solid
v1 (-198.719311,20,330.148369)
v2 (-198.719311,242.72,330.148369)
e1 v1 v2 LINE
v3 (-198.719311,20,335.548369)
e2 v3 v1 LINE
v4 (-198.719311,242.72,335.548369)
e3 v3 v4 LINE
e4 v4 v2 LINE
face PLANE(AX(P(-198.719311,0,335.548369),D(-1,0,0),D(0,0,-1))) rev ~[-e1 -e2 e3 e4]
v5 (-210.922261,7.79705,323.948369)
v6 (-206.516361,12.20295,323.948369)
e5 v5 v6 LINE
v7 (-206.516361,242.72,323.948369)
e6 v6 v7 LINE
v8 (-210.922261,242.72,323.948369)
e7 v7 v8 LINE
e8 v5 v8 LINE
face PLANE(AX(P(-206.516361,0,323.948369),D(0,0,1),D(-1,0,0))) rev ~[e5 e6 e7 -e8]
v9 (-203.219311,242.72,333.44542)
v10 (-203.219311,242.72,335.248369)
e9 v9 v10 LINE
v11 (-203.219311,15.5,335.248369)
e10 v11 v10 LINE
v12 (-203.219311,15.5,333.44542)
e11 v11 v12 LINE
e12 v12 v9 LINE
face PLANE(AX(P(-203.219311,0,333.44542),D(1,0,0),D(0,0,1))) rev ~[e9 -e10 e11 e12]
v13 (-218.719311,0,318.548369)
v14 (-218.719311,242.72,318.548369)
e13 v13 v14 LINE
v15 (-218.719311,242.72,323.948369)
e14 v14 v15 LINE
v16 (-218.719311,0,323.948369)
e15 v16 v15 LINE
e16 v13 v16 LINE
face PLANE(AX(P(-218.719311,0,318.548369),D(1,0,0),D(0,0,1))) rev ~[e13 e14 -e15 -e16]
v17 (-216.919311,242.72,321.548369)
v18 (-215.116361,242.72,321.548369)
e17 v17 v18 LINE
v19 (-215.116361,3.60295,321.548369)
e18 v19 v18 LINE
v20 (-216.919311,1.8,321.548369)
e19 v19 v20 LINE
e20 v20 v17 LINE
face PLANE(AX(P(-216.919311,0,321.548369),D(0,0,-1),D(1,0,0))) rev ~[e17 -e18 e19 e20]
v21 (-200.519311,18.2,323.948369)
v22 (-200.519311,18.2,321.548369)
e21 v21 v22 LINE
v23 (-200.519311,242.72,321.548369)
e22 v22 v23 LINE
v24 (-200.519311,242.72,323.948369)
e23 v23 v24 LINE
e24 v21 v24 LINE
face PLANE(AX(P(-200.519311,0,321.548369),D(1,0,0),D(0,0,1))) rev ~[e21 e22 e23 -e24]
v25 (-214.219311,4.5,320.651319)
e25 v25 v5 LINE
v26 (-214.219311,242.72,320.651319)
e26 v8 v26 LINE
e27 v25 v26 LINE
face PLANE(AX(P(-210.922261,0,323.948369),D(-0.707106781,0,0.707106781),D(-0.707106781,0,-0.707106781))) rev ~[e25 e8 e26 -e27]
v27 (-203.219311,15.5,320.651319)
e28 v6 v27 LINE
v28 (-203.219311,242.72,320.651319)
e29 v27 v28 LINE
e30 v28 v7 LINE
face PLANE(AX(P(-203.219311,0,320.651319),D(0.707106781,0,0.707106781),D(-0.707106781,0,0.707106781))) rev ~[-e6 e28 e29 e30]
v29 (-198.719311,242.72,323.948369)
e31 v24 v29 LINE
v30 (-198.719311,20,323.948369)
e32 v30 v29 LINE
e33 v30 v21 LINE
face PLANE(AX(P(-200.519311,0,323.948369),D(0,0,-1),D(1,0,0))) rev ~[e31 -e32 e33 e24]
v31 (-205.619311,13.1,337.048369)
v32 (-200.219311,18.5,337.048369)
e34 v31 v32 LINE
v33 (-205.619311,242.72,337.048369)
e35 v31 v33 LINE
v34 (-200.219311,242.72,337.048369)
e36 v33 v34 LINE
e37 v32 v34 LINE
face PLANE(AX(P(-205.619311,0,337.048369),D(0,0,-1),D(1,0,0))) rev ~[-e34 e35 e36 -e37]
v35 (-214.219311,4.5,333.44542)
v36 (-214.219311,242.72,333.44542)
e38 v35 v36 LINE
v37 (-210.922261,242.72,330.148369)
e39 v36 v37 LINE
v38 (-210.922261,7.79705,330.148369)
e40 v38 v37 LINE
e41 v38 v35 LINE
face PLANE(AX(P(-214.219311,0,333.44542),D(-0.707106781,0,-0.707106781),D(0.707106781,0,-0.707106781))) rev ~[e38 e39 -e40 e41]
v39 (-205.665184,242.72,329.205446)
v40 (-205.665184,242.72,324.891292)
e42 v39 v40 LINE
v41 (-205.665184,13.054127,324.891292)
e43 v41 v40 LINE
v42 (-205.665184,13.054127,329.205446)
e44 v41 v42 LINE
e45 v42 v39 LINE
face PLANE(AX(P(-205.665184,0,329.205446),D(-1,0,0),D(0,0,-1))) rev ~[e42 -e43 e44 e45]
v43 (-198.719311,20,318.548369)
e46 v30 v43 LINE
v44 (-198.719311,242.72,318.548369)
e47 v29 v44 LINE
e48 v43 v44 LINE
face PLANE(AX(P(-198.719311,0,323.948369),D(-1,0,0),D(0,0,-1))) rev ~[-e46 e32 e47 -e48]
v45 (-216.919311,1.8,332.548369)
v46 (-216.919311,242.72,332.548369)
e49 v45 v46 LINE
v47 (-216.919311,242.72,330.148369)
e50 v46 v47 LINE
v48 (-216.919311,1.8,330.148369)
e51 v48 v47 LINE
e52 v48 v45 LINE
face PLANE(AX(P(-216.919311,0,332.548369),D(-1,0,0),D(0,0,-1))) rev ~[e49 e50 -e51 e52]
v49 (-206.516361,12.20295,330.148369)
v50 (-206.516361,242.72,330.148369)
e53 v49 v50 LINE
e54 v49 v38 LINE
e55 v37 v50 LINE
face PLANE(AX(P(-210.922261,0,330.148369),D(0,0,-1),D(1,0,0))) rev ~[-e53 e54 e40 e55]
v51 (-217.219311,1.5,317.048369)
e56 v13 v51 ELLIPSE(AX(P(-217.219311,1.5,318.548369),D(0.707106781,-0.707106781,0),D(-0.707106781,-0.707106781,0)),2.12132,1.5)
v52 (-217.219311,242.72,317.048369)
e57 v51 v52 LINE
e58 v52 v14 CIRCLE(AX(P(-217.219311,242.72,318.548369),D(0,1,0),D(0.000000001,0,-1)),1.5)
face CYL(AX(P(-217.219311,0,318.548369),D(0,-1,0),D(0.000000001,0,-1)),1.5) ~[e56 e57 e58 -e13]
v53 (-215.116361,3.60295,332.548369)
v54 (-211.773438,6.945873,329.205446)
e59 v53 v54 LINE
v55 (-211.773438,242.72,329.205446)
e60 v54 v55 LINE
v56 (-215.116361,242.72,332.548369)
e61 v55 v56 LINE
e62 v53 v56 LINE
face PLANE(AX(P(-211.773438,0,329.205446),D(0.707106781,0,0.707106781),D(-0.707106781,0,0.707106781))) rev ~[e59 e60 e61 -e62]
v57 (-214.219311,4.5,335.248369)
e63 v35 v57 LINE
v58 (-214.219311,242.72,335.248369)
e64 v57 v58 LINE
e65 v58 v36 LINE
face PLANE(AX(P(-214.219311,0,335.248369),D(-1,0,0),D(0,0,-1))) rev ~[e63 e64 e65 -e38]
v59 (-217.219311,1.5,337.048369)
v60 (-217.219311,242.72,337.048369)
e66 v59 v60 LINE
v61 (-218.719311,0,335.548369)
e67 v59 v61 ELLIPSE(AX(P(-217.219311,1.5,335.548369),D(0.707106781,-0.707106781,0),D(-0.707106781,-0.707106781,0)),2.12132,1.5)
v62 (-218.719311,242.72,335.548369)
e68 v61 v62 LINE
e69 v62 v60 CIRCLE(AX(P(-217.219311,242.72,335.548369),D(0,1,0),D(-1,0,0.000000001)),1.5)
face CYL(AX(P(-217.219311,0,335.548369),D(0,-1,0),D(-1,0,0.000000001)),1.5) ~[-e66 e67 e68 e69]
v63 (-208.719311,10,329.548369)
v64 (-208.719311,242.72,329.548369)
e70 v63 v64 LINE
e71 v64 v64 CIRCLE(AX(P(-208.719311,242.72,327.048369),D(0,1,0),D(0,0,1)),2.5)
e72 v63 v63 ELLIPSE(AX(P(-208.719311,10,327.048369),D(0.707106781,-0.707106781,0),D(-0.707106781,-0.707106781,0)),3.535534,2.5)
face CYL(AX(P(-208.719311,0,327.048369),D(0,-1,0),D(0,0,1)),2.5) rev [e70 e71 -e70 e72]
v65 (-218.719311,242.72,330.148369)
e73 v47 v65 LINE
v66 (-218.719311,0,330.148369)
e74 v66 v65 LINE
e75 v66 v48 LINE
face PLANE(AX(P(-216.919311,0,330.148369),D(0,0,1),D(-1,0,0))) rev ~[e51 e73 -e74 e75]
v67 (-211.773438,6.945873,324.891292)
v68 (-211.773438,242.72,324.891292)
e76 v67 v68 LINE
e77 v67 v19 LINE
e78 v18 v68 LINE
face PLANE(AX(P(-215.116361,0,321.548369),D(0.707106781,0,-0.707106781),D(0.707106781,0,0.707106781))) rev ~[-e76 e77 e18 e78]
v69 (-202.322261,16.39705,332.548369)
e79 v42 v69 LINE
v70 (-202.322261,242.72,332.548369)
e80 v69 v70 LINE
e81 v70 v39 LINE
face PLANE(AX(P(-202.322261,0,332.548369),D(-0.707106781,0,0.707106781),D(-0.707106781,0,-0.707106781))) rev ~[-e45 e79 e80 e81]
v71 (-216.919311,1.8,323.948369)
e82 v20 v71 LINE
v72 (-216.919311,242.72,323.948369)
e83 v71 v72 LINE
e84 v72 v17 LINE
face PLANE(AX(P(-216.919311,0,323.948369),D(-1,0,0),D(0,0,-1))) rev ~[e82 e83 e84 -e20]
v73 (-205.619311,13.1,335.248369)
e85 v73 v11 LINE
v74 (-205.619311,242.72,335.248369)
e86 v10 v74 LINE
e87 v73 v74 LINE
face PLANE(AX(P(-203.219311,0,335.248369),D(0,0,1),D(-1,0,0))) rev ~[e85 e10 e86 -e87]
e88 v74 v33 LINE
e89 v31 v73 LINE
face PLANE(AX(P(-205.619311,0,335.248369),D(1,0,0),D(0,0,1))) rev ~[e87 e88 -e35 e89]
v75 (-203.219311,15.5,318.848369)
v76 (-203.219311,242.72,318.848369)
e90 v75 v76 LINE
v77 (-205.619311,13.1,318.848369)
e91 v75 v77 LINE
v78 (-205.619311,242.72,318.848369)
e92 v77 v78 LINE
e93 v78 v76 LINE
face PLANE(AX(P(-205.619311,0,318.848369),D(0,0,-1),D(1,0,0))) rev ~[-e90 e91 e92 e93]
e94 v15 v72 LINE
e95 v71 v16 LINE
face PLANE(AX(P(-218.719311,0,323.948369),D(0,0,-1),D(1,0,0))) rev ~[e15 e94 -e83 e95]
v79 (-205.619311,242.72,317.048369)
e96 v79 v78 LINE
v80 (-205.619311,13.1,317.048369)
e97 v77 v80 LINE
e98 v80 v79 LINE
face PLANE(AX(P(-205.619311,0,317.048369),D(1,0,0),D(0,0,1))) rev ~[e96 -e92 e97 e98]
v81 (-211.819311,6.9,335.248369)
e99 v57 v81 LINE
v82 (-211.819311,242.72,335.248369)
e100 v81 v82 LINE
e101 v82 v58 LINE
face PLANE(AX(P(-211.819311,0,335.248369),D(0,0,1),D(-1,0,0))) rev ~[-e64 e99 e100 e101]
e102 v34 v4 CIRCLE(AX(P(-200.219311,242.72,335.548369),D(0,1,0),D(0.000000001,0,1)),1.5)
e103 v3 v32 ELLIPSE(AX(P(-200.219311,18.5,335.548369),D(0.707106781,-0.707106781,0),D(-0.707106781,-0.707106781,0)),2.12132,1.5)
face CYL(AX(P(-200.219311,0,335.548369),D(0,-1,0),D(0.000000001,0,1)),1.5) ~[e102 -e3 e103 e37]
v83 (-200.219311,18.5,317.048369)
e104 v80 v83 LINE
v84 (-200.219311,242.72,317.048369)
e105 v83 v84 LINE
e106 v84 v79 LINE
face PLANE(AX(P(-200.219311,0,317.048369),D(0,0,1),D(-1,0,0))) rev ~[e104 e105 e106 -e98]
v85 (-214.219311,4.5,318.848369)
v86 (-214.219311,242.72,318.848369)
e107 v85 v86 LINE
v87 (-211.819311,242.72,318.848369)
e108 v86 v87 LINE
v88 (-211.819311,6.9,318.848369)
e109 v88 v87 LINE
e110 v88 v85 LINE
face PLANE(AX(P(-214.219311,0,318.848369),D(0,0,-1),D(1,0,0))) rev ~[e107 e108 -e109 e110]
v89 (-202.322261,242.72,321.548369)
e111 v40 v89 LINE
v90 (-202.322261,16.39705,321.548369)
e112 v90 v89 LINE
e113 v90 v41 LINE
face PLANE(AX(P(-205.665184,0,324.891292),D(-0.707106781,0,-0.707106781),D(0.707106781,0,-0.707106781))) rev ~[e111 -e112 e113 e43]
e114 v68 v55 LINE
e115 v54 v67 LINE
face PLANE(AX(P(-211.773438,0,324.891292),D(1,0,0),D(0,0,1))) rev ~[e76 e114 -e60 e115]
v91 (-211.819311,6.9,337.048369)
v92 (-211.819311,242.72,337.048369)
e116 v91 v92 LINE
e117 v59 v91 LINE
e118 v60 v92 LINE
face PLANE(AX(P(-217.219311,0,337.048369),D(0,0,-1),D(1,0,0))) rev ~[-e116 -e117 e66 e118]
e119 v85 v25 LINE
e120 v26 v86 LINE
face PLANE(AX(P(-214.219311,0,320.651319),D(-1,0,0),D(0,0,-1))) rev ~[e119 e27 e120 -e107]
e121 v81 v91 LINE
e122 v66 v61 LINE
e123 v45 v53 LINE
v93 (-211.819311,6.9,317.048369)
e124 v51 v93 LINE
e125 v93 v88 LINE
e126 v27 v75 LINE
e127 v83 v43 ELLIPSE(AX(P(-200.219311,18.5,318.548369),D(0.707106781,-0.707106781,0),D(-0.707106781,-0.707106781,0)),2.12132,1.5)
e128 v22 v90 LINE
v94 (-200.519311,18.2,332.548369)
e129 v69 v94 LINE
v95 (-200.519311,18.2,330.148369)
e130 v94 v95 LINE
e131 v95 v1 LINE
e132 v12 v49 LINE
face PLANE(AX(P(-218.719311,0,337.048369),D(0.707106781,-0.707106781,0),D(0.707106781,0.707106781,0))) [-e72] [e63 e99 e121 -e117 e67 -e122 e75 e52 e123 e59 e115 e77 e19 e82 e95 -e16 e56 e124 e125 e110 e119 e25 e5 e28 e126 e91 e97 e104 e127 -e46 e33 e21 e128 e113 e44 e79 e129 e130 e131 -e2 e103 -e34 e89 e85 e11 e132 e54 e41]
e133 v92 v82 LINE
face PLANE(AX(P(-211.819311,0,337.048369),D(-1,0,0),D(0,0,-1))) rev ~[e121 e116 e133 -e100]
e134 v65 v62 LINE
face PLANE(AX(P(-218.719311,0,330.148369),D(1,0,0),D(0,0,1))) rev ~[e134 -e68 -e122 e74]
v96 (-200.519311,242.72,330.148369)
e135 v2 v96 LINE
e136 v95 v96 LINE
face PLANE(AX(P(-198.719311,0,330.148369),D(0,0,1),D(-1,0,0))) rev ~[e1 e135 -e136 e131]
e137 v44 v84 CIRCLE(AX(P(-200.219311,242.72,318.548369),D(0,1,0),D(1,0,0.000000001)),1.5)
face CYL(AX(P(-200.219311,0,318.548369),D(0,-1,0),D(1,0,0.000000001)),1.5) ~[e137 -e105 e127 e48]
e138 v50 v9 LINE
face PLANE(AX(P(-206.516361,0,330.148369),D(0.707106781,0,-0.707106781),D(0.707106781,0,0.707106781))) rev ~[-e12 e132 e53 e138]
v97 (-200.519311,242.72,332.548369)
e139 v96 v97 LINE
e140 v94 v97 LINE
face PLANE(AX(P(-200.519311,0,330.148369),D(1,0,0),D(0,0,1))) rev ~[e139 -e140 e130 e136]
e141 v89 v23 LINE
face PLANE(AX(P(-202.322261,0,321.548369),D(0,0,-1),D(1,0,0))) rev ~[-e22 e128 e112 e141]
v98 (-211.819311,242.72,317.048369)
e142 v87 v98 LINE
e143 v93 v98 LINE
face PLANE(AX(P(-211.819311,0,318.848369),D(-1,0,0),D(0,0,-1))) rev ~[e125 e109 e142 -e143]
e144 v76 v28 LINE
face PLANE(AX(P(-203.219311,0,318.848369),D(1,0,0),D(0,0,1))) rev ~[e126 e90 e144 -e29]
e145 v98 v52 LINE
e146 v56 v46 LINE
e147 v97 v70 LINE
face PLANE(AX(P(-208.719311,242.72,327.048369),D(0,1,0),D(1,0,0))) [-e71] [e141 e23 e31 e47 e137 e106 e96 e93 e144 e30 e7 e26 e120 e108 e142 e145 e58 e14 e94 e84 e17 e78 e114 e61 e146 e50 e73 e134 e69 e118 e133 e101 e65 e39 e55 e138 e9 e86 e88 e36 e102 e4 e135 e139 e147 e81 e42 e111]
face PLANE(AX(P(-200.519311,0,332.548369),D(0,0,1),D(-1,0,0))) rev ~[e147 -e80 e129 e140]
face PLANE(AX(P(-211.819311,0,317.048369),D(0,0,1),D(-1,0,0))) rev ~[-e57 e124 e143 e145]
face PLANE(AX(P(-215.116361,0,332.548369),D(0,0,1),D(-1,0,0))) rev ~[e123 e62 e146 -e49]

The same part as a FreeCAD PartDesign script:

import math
import FreeCAD as App
import Part
import Sketcher
from FreeCAD import Vector


def add_polygon(sketch, points):
    """Adds a closed chain of lines whose ends are joined by coincident constraints."""
    first, n = sketch.GeometryCount, len(points)
    for a, b in zip(points, points[1:] + points[:1]):
        sketch.addGeometry(Part.LineSegment(App.Vector(*a, 0), App.Vector(*b, 0)), False)
    for i in range(n):
        sketch.addConstraint(Sketcher.Constraint("Coincident", first + i, 2, first + (i + 1) % n, 1))

doc = App.newDocument("Part")
body = doc.addObject("PartDesign::Body", "Body")

sketch1 = body.newObject("Sketcher::SketchObject", "Sketch")
sketch1.AttachmentSupport = (doc.getObject("XZ_Plane"), [""])
sketch1.MapMode = "FlatFace"
sketch1.addGeometry([
    Part.LineSegment(Vector(-216.9, 330.1, 0), Vector(-218.7, 330.1, 0)),
    Part.LineSegment(Vector(-218.7, 330.1, 0), Vector(-218.7, 335.5, 0)),
    Part.ArcOfCircle(Part.Circle(Vector(-217.2, 335.5, 0), Vector(0, 0, 1), 1.5), math.radians(90), math.radians(180)),
    Part.LineSegment(Vector(-217.2, 337, 0), Vector(-211.8, 337, 0)),
    Part.LineSegment(Vector(-211.8, 337, 0), Vector(-211.8, 335.2, 0)),
    Part.LineSegment(Vector(-211.8, 335.2, 0), Vector(-214.2, 335.2, 0)),
    Part.LineSegment(Vector(-214.2, 335.2, 0), Vector(-214.2, 333.4, 0)),
    Part.LineSegment(Vector(-214.2, 333.4, 0), Vector(-210.9, 330.1, 0)),
    Part.LineSegment(Vector(-210.9, 330.1, 0), Vector(-206.5, 330.1, 0)),
    Part.LineSegment(Vector(-206.5, 330.1, 0), Vector(-203.2, 333.4, 0)),
    Part.LineSegment(Vector(-203.2, 333.4, 0), Vector(-203.2, 335.2, 0)),
    Part.LineSegment(Vector(-203.2, 335.2, 0), Vector(-205.6, 335.2, 0)),
    Part.LineSegment(Vector(-205.6, 335.2, 0), Vector(-205.6, 337, 0)),
    Part.LineSegment(Vector(-205.6, 337, 0), Vector(-200.2, 337, 0)),
    Part.ArcOfCircle(Part.Circle(Vector(-200.2, 335.5, 0), Vector(0, 0, 1), 1.5), math.radians(0), math.radians(90)),
    Part.LineSegment(Vector(-198.7, 335.5, 0), Vector(-198.7, 330.1, 0)),
    Part.LineSegment(Vector(-198.7, 330.1, 0), Vector(-200.5, 330.1, 0)),
    Part.LineSegment(Vector(-200.5, 330.1, 0), Vector(-200.5, 332.5, 0)),
    Part.LineSegment(Vector(-200.5, 332.5, 0), Vector(-202.3, 332.5, 0)),
    Part.LineSegment(Vector(-202.3, 332.5, 0), Vector(-205.7, 329.2, 0)),
    Part.LineSegment(Vector(-205.7, 329.2, 0), Vector(-205.7, 324.9, 0)),
    Part.LineSegment(Vector(-205.7, 324.9, 0), Vector(-202.3, 321.5, 0)),
    Part.LineSegment(Vector(-202.3, 321.5, 0), Vector(-200.5, 321.5, 0)),
    Part.LineSegment(Vector(-200.5, 321.5, 0), Vector(-200.5, 323.9, 0)),
    Part.LineSegment(Vector(-200.5, 323.9, 0), Vector(-198.7, 323.9, 0)),
    Part.LineSegment(Vector(-198.7, 323.9, 0), Vector(-198.7, 318.5, 0)),
    Part.ArcOfCircle(Part.Circle(Vector(-200.2, 318.5, 0), Vector(0, 0, 1), 1.5), math.radians(-90), math.radians(0)),
    Part.LineSegment(Vector(-200.2, 317, 0), Vector(-205.6, 317, 0)),
    Part.LineSegment(Vector(-205.6, 317, 0), Vector(-205.6, 318.8, 0)),
    Part.LineSegment(Vector(-205.6, 318.8, 0), Vector(-203.2, 318.8, 0)),
    Part.LineSegment(Vector(-203.2, 318.8, 0), Vector(-203.2, 320.7, 0)),
    Part.LineSegment(Vector(-203.2, 320.7, 0), Vector(-206.5, 323.9, 0)),
    Part.LineSegment(Vector(-206.5, 323.9, 0), Vector(-210.9, 323.9, 0)),
    Part.LineSegment(Vector(-210.9, 323.9, 0), Vector(-214.2, 320.7, 0)),
    Part.LineSegment(Vector(-214.2, 320.7, 0), Vector(-214.2, 318.8, 0)),
    Part.LineSegment(Vector(-214.2, 318.8, 0), Vector(-211.8, 318.8, 0)),
    Part.LineSegment(Vector(-211.8, 318.8, 0), Vector(-211.8, 317, 0)),
    Part.LineSegment(Vector(-211.8, 317, 0), Vector(-217.2, 317, 0)),
    Part.ArcOfCircle(Part.Circle(Vector(-217.2, 318.5, 0), Vector(0, 0, 1), 1.5), math.radians(180), math.radians(270)),
    Part.LineSegment(Vector(-218.7, 318.5, 0), Vector(-218.7, 323.9, 0)),
    Part.LineSegment(Vector(-218.7, 323.9, 0), Vector(-216.9, 323.9, 0)),
    Part.LineSegment(Vector(-216.9, 323.9, 0), Vector(-216.9, 321.5, 0)),
    Part.LineSegment(Vector(-216.9, 321.5, 0), Vector(-215.1, 321.5, 0)),
    Part.LineSegment(Vector(-215.1, 321.5, 0), Vector(-211.8, 324.9, 0)),
    Part.LineSegment(Vector(-211.8, 324.9, 0), Vector(-211.8, 329.2, 0)),
    Part.LineSegment(Vector(-211.8, 329.2, 0), Vector(-215.1, 332.5, 0)),
    Part.LineSegment(Vector(-215.1, 332.5, 0), Vector(-216.9, 332.5, 0)),
    Part.LineSegment(Vector(-216.9, 332.5, 0), Vector(-216.9, 330.1, 0)),
    Part.Circle(Vector(-208.7, 327, 0), Vector(0, 0, 1), 2.5),
], False)
sketch1.addConstraint([
    Sketcher.Constraint("Coincident", 0, 2, 1, 1),
    Sketcher.Constraint("Tangent", 1, 2, 2, 2),
    Sketcher.Constraint("Tangent", 2, 1, 3, 1),
    Sketcher.Constraint("Coincident", 3, 2, 4, 1),
    Sketcher.Constraint("Coincident", 4, 2, 5, 1),
    Sketcher.Constraint("Coincident", 5, 2, 6, 1),
    Sketcher.Constraint("Coincident", 6, 2, 7, 1),
    Sketcher.Constraint("Coincident", 7, 2, 8, 1),
    Sketcher.Constraint("Coincident", 8, 2, 9, 1),
    Sketcher.Constraint("Coincident", 9, 2, 10, 1),
    Sketcher.Constraint("Coincident", 10, 2, 11, 1),
    Sketcher.Constraint("Coincident", 11, 2, 12, 1),
    Sketcher.Constraint("Coincident", 12, 2, 13, 1),
    Sketcher.Constraint("Tangent", 13, 2, 14, 2),
    Sketcher.Constraint("Tangent", 14, 1, 15, 1),
    Sketcher.Constraint("Coincident", 15, 2, 16, 1),
    Sketcher.Constraint("Coincident", 16, 2, 17, 1),
    Sketcher.Constraint("Coincident", 17, 2, 18, 1),
    Sketcher.Constraint("Coincident", 18, 2, 19, 1),
    Sketcher.Constraint("Coincident", 19, 2, 20, 1),
    Sketcher.Constraint("Coincident", 20, 2, 21, 1),
    Sketcher.Constraint("Coincident", 21, 2, 22, 1),
    Sketcher.Constraint("Coincident", 22, 2, 23, 1),
    Sketcher.Constraint("Coincident", 23, 2, 24, 1),
    Sketcher.Constraint("Coincident", 24, 2, 25, 1),
    Sketcher.Constraint("Tangent", 25, 2, 26, 2),
    Sketcher.Constraint("Tangent", 26, 1, 27, 1),
    Sketcher.Constraint("Coincident", 27, 2, 28, 1),
    Sketcher.Constraint("Coincident", 28, 2, 29, 1),
    Sketcher.Constraint("Coincident", 29, 2, 30, 1),
    Sketcher.Constraint("Coincident", 30, 2, 31, 1),
    Sketcher.Constraint("Coincident", 31, 2, 32, 1),
    Sketcher.Constraint("Coincident", 32, 2, 33, 1),
    Sketcher.Constraint("Coincident", 33, 2, 34, 1),
    Sketcher.Constraint("Coincident", 34, 2, 35, 1),
    Sketcher.Constraint("Coincident", 35, 2, 36, 1),
    Sketcher.Constraint("Coincident", 36, 2, 37, 1),
    Sketcher.Constraint("Tangent", 37, 2, 38, 2),
    Sketcher.Constraint("Tangent", 38, 1, 39, 1),
    Sketcher.Constraint("Coincident", 39, 2, 40, 1),
    Sketcher.Constraint("Coincident", 40, 2, 41, 1),
    Sketcher.Constraint("Coincident", 41, 2, 42, 1),
    Sketcher.Constraint("Coincident", 42, 2, 43, 1),
    Sketcher.Constraint("Coincident", 43, 2, 44, 1),
    Sketcher.Constraint("Coincident", 44, 2, 45, 1),
    Sketcher.Constraint("Coincident", 45, 2, 46, 1),
    Sketcher.Constraint("Coincident", 46, 2, 47, 1),
    Sketcher.Constraint("Coincident", 47, 2, 0, 1),
    Sketcher.Constraint("Horizontal", 0),
    Sketcher.Constraint("Vertical", 1),
    Sketcher.Constraint("Horizontal", 3),
    Sketcher.Constraint("Vertical", 4),
    Sketcher.Constraint("Horizontal", 5),
    Sketcher.Constraint("Vertical", 6),
    Sketcher.Constraint("Horizontal", 8),
    Sketcher.Constraint("Vertical", 10),
    Sketcher.Constraint("Horizontal", 11),
    Sketcher.Constraint("Vertical", 12),
    Sketcher.Constraint("Horizontal", 13),
    Sketcher.Constraint("Vertical", 15),
    Sketcher.Constraint("Horizontal", 16),
    Sketcher.Constraint("Vertical", 17),
    Sketcher.Constraint("Horizontal", 18),
    Sketcher.Constraint("Vertical", 20),
    Sketcher.Constraint("Horizontal", 22),
    Sketcher.Constraint("Vertical", 23),
    Sketcher.Constraint("Horizontal", 24),
    Sketcher.Constraint("Vertical", 25),
    Sketcher.Constraint("Horizontal", 27),
    Sketcher.Constraint("Vertical", 28),
    Sketcher.Constraint("Horizontal", 29),
    Sketcher.Constraint("Vertical", 30),
    Sketcher.Constraint("Horizontal", 32),
    Sketcher.Constraint("Vertical", 34),
    Sketcher.Constraint("Horizontal", 35),
    Sketcher.Constraint("Vertical", 36),
    Sketcher.Constraint("Horizontal", 37),
    Sketcher.Constraint("Vertical", 39),
    Sketcher.Constraint("Horizontal", 40),
    Sketcher.Constraint("Vertical", 41),
    Sketcher.Constraint("Horizontal", 42),
    Sketcher.Constraint("Vertical", 44),
    Sketcher.Constraint("Horizontal", 46),
    Sketcher.Constraint("Vertical", 47),
    Sketcher.Constraint("Equal", 2, 14),
    Sketcher.Constraint("Equal", 14, 26),
    Sketcher.Constraint("Equal", 26, 38),
    Sketcher.Constraint("Perpendicular", 7, 9),
    Sketcher.Constraint("Parallel", 9, 19),
    Sketcher.Constraint("Perpendicular", 19, 21),
    Sketcher.Constraint("Parallel", 21, 31),
    Sketcher.Constraint("Perpendicular", 31, 33),
    Sketcher.Constraint("Parallel", 33, 43),
    Sketcher.Constraint("Perpendicular", 43, 45),
    Sketcher.Constraint("Horizontal", 2, 3, 14, 3),
    Sketcher.Constraint("Horizontal", 26, 3, 38, 3),
    Sketcher.Constraint("Horizontal", 0, 2, 7, 2),
    Sketcher.Constraint("Horizontal", 6, 2, 9, 2),
    Sketcher.Constraint("Horizontal", 5, 2, 10, 2),
    Sketcher.Constraint("Horizontal", 8, 2, 15, 2),
    Sketcher.Constraint("Horizontal", 24, 2, 31, 2),
    Sketcher.Constraint("Horizontal", 30, 2, 33, 2),
    Sketcher.Constraint("Horizontal", 29, 2, 34, 2),
    Sketcher.Constraint("Horizontal", 32, 2, 39, 2),
    Sketcher.Constraint("Horizontal", 22, 2, 41, 2),
    Sketcher.Constraint("Horizontal", 20, 2, 43, 2),
    Sketcher.Constraint("Horizontal", 19, 2, 44, 2),
    Sketcher.Constraint("Horizontal", 18, 2, 45, 2),
    Sketcher.Constraint("Vertical", 14, 3, 26, 3),
    Sketcher.Constraint("Vertical", 2, 3, 38, 3),
    Sketcher.Constraint("Vertical", 18, 2, 21, 2),
    Sketcher.Constraint("Vertical", 17, 2, 22, 2),
    Sketcher.Constraint("Vertical", 12, 2, 27, 2),
    Sketcher.Constraint("Vertical", 10, 2, 29, 2),
    Sketcher.Constraint("Vertical", 8, 2, 31, 2),
    Sketcher.Constraint("Vertical", 7, 2, 32, 2),
    Sketcher.Constraint("Vertical", 6, 2, 33, 2),
    Sketcher.Constraint("Vertical", 4, 2, 35, 2),
    Sketcher.Constraint("Vertical", 41, 2, 46, 2),
    Sketcher.Constraint("Equal", 5, 11),
    Sketcher.Constraint("Equal", 3, 13),
    Sketcher.Constraint("Equal", 0, 16),
    Sketcher.Constraint("Equal", 22, 42),
    Sketcher.Constraint("Equal", 37, 1),
    Sketcher.Constraint("Equal", 40, 4),
    Sketcher.Constraint("Equal", 46, 6),
    Sketcher.Constraint("Equal", 35, 17),
    Sketcher.Constraint("Equal", 17, 23),
    Sketcher.Constraint("Equal", 15, 25),
    Sketcher.Constraint("Equal", 12, 28),
    Sketcher.Constraint("Diameter", 48, 5.0),
    Sketcher.Constraint("Radius", 2, 1.5),
    Sketcher.Constraint("DistanceX", 0, 2, 0, 1, 1.8),
    Sketcher.Constraint("DistanceX", 3, 1, 3, 2, 5.4),
    Sketcher.Constraint("DistanceX", 5, 2, 5, 1, 2.4),
    Sketcher.Constraint("DistanceX", 2, 3, 14, 3, 17.0),
    Sketcher.Constraint("DistanceY", 26, 3, 14, 3, 17.0),
    Sketcher.Constraint("DistanceX", 0, 2, 48, 3, 10.0),
    Sketcher.Constraint("DistanceY", 48, 3, 2, 1, 10.0),
    Sketcher.Constraint("DistanceX", 8, 1, 8, 2, 4.4059),
    Sketcher.Constraint("DistanceY", 20, 2, 20, 1, 4.314154),
    Sketcher.Constraint("DistanceX", 2, 3, -1, 1, 217.219311),
    Sketcher.Constraint("DistanceY", -1, 1, 2, 3, 335.548369),
])
pad1 = body.newObject("PartDesign::Pad", "Pad")
pad1.Profile = sketch1
pad1.Length = 242.72
pad1.Reversed = True

sketch2 = body.newObject("Sketcher::SketchObject", "Sketch001")
sketch2.AttachmentSupport = (doc.getObject("XY_Plane"), [""])
sketch2.MapMode = "FlatFace"
sketch2.AttachmentOffset = App.Placement(Vector(0, 0, 337.048369), App.Rotation())
add_polygon(sketch2, [(-199, 20), (-219, 0), (-199, 0)])
sketch2.addConstraint([
    Sketcher.Constraint("Horizontal", 1),
    Sketcher.Constraint("Vertical", 2),
    Sketcher.Constraint("PointOnObject", 0, 2, -1),
    Sketcher.Constraint("Equal", 1, 2),
    Sketcher.Constraint("DistanceX", 1, 1, 1, 2, 20.0),
    Sketcher.Constraint("DistanceX", 0, 2, -1, 1, 218.719311),
])
pocket1 = body.newObject("PartDesign::Pocket", "Pocket")
pocket1.Profile = sketch2
pocket1.Type = "ThroughAll"

doc.recompute()
